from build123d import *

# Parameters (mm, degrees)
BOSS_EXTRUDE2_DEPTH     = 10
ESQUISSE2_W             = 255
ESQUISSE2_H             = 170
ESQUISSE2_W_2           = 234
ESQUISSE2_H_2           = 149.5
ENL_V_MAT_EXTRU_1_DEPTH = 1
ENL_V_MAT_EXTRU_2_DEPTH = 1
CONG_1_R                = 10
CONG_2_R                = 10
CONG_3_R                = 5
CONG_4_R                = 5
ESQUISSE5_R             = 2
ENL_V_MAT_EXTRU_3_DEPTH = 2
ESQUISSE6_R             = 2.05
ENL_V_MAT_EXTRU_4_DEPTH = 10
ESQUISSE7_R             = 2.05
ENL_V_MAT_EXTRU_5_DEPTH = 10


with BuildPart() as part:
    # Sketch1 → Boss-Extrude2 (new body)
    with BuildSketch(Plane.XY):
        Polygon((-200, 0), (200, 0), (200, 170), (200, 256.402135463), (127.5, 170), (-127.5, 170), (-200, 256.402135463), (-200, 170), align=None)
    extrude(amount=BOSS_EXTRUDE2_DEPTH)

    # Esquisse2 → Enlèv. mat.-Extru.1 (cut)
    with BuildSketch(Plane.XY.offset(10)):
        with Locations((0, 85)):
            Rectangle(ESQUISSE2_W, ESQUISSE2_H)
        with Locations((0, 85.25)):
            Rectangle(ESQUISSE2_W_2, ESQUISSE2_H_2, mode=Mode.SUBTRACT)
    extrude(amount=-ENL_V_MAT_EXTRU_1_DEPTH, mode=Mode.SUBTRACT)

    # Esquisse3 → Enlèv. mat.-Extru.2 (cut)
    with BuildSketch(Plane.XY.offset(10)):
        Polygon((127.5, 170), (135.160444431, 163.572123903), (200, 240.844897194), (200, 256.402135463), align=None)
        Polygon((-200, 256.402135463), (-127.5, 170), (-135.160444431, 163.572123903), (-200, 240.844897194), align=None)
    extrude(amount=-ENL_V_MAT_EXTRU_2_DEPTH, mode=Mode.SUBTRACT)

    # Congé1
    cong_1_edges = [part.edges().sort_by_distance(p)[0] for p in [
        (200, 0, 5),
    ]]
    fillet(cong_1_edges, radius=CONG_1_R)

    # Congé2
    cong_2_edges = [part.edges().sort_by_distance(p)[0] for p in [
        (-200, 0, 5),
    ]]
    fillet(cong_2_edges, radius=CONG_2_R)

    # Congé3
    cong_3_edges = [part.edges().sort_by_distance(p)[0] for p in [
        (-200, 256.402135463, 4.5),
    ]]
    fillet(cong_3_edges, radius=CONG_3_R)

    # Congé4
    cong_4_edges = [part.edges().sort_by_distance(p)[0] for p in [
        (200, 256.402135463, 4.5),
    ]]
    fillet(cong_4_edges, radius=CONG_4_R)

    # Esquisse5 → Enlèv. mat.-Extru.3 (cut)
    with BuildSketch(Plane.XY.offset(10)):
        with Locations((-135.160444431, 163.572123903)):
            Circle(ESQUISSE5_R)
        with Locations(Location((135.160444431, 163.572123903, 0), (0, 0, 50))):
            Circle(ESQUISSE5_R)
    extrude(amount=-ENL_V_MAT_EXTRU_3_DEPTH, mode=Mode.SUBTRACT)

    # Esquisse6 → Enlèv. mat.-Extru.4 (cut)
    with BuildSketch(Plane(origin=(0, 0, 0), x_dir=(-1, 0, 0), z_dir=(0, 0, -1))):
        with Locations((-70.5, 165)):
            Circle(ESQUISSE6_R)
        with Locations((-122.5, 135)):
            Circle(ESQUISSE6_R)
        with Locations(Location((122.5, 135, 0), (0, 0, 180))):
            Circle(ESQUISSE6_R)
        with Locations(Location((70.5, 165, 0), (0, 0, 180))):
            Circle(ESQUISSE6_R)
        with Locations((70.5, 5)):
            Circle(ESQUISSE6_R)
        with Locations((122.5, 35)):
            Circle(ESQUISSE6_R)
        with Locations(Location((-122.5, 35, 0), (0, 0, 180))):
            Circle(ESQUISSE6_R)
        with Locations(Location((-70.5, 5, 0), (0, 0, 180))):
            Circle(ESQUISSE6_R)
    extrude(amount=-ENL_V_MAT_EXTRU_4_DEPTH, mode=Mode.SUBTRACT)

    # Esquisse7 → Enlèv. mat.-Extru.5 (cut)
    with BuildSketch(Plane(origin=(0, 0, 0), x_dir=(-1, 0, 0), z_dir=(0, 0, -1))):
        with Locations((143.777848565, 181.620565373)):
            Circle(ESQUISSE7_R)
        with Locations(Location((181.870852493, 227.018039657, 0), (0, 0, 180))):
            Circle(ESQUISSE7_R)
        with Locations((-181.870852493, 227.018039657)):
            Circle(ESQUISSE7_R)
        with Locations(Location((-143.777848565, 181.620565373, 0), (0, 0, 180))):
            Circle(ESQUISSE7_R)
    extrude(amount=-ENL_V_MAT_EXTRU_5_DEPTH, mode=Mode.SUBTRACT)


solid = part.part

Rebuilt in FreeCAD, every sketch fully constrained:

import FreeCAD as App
import Part
import Sketcher

V = App.Vector
Q = App.Units.Quantity


def edges_at(feature, points):
    """Names of the edges that pass closest to the given points."""
    edges = feature.Shape.Edges
    near = lambda p: min(range(len(edges)), key=lambda i: edges[i].distToShape(Part.Vertex(*p))[0])
    return sorted({f"Edge{near(p) + 1}" for p in points})

doc = App.newDocument("Part")
body = doc.addObject("PartDesign::Body", "Body")

# Sketch on XY plane
sketch1 = body.newObject("Sketcher::SketchObject", "Sketch")
sketch1.AttachmentSupport = (doc.getObject("XY_Plane"), [""])
sketch1.MapMode = "FlatFace"
sketch1.addGeometry(Part.LineSegment(V(-200, 0, 0), V(200, 0, 0)), False)
sketch1.addGeometry(Part.LineSegment(V(200, 0, 0), V(200, 256, 0)), False)
sketch1.addGeometry(Part.LineSegment(V(200, 256, 0), V(128, 170, 0)), False)
sketch1.addGeometry(Part.LineSegment(V(128, 170, 0), V(-128, 170, 0)), False)
sketch1.addGeometry(Part.LineSegment(V(-128, 170, 0), V(-200, 256, 0)), False)
sketch1.addGeometry(Part.LineSegment(V(-200, 256, 0), V(-200, 0, 0)), False)
sketch1.addConstraint(Sketcher.Constraint("Coincident", 0, 2, 1, 1))
sketch1.addConstraint(Sketcher.Constraint("Coincident", 1, 2, 2, 1))
sketch1.addConstraint(Sketcher.Constraint("Coincident", 2, 2, 3, 1))
sketch1.addConstraint(Sketcher.Constraint("Coincident", 3, 2, 4, 1))
sketch1.addConstraint(Sketcher.Constraint("Coincident", 4, 2, 5, 1))
sketch1.addConstraint(Sketcher.Constraint("Coincident", 5, 2, 0, 1))
sketch1.addConstraint(Sketcher.Constraint("Horizontal", 0))
sketch1.addConstraint(Sketcher.Constraint("Vertical", 1))
sketch1.addConstraint(Sketcher.Constraint("Horizontal", 3))
sketch1.addConstraint(Sketcher.Constraint("Vertical", 5))
sketch1.addConstraint(Sketcher.Constraint("Symmetric", 0, 2, 5, 2, -1, 1))
sketch1.addConstraint(Sketcher.Constraint("Horizontal", 1, 2, 4, 2))
sketch1.addConstraint(Sketcher.Constraint("Equal", 2, 4))
sketch1.addConstraint(Sketcher.Constraint("DistanceX", 0, 1, 0, 2, 400.0))
sketch1.addConstraint(Sketcher.Constraint("DistanceX", 3, 2, 3, 1, 255.0))
sketch1.addConstraint(Sketcher.Constraint("Angle", 2, Q("-130 deg")))
sketch1.addConstraint(Sketcher.Constraint("DistanceY", -1, 1, 2, 2, 170.0))
pad1 = body.newObject("PartDesign::Pad", "Pad")
pad1.Profile = sketch1
pad1.Length = 10

# Sketch on XY plane
sketch2 = body.newObject("Sketcher::SketchObject", "Sketch001")
sketch2.AttachmentSupport = (doc.getObject("XY_Plane"), [""])
sketch2.MapMode = "FlatFace"
sketch2.AttachmentOffset = App.Placement(V(0, 0, 10), App.Rotation())
sketch2.addGeometry(Part.LineSegment(V(-128, 170, 0), V(-128, 0, 0)), False)
sketch2.addGeometry(Part.LineSegment(V(-128, 0, 0), V(128, 0, 0)), False)
sketch2.addGeometry(Part.LineSegment(V(128, 0, 0), V(128, 170, 0)), False)
sketch2.addGeometry(Part.LineSegment(V(128, 170, 0), V(-128, 170, 0)), False)
sketch2.addGeometry(Part.LineSegment(V(117, 10, 0), V(-117, 10, 0)), False)
sketch2.addGeometry(Part.LineSegment(V(-117, 10, 0), V(-117, 160, 0)), False)
sketch2.addGeometry(Part.LineSegment(V(-117, 160, 0), V(117, 160, 0)), False)
sketch2.addGeometry(Part.LineSegment(V(117, 160, 0), V(117, 10, 0)), False)
sketch2.addConstraint(Sketcher.Constraint("Coincident", 0, 2, 1, 1))
sketch2.addConstraint(Sketcher.Constraint("Coincident", 1, 2, 2, 1))
sketch2.addConstraint(Sketcher.Constraint("Coincident", 2, 2, 3, 1))
sketch2.addConstraint(Sketcher.Constraint("Coincident", 3, 2, 0, 1))
sketch2.addConstraint(Sketcher.Constraint("Coincident", 4, 2, 5, 1))
sketch2.addConstraint(Sketcher.Constraint("Coincident", 5, 2, 6, 1))
sketch2.addConstraint(Sketcher.Constraint("Coincident", 6, 2, 7, 1))
sketch2.addConstraint(Sketcher.Constraint("Coincident", 7, 2, 4, 1))
sketch2.addConstraint(Sketcher.Constraint("Vertical", 0))
sketch2.addConstraint(Sketcher.Constraint("Horizontal", 1))
sketch2.addConstraint(Sketcher.Constraint("Vertical", 2))
sketch2.addConstraint(Sketcher.Constraint("Horizontal", 3))
sketch2.addConstraint(Sketcher.Constraint("Horizontal", 4))
sketch2.addConstraint(Sketcher.Constraint("Vertical", 5))
sketch2.addConstraint(Sketcher.Constraint("Horizontal", 6))
sketch2.addConstraint(Sketcher.Constraint("Vertical", 7))
sketch2.addConstraint(Sketcher.Constraint("Symmetric", 0, 2, 1, 2, -1, 1))
sketch2.addConstraint(Sketcher.Constraint("DistanceX", 1, 1, 1, 2, 255.0))
sketch2.addConstraint(Sketcher.Constraint("DistanceX", 4, 2, 4, 1, 234.0))
sketch2.addConstraint(Sketcher.Constraint("DistanceY", 0, 2, 0, 1, 170.0))
sketch2.addConstraint(Sketcher.Constraint("DistanceY", 5, 1, 5, 2, 149.5))
sketch2.addConstraint(Sketcher.Constraint("DistanceX", 4, 2, -1, 1, 117.0))
sketch2.addConstraint(Sketcher.Constraint("DistanceY", -1, 1, 5, 2, 160.0))
pocket1 = body.newObject("PartDesign::Pocket", "Pocket")
pocket1.Profile = sketch2
pocket1.Length = 1

# Sketch on XY plane
sketch3 = body.newObject("Sketcher::SketchObject", "Sketch002")
sketch3.AttachmentSupport = (doc.getObject("XY_Plane"), [""])
sketch3.MapMode = "FlatFace"
sketch3.AttachmentOffset = App.Placement(V(0, 0, 10), App.Rotation())
sketch3.addGeometry(Part.LineSegment(V(128, 170, 0), V(135, 164, 0)), False)
sketch3.addGeometry(Part.LineSegment(V(135, 164, 0), V(200, 241, 0)), False)
sketch3.addGeometry(Part.LineSegment(V(200, 241, 0), V(200, 256, 0)), False)
sketch3.addGeometry(Part.LineSegment(V(200, 256, 0), V(128, 170, 0)), False)
sketch3.addGeometry(Part.LineSegment(V(-128, 170, 0), V(-200, 256, 0)), False)
sketch3.addGeometry(Part.LineSegment(V(-200, 256, 0), V(-200, 241, 0)), False)
sketch3.addGeometry(Part.LineSegment(V(-200, 241, 0), V(-135, 164, 0)), False)
sketch3.addGeometry(Part.LineSegment(V(-135, 164, 0), V(-128, 170, 0)), False)
sketch3.addConstraint(Sketcher.Constraint("Coincident", 0, 2, 1, 1))
sketch3.addConstraint(Sketcher.Constraint("Coincident", 1, 2, 2, 1))
sketch3.addConstraint(Sketcher.Constraint("Coincident", 2, 2, 3, 1))
sketch3.addConstraint(Sketcher.Constraint("Coincident", 3, 2, 0, 1))
sketch3.addConstraint(Sketcher.Constraint("Coincident", 4, 2, 5, 1))
sketch3.addConstraint(Sketcher.Constraint("Coincident", 5, 2, 6, 1))
sketch3.addConstraint(Sketcher.Constraint("Coincident", 6, 2, 7, 1))
sketch3.addConstraint(Sketcher.Constraint("Coincident", 7, 2, 4, 1))
sketch3.addConstraint(Sketcher.Constraint("Vertical", 2))
sketch3.addConstraint(Sketcher.Constraint("Vertical", 5))
sketch3.addConstraint(Sketcher.Constraint("Symmetric", 2, 2, 4, 2, -2))
sketch3.addConstraint(Sketcher.Constraint("Symmetric", 0, 2, 6, 2, -2))
sketch3.addConstraint(Sketcher.Constraint("Symmetric", 3, 2, 7, 2, -2))
sketch3.addConstraint(Sketcher.Constraint("Perpendicular", 0, 1))
sketch3.addConstraint(Sketcher.Constraint("Parallel", 1, 3))
sketch3.addConstraint(Sketcher.Constraint("Parallel", 4, 6))
sketch3.addConstraint(Sketcher.Constraint("Angle", 0, Q("-40 deg")))
sketch3.addConstraint(Sketcher.Constraint("Distance", 0, 10.0))
sketch3.addConstraint(Sketcher.Constraint("DistanceX", -1, 1, 1, 2, 200.0))
sketch3.addConstraint(Sketcher.Constraint("DistanceY", -1, 1, 3, 2, 170.0))
sketch3.addConstraint(Sketcher.Constraint("DistanceX", 7, 2, 3, 2, 255.0))
pocket2 = body.newObject("PartDesign::Pocket", "Pocket001")
pocket2.Profile = sketch3
pocket2.Length = 1
doc.recompute()

fillet = body.newObject("PartDesign::Fillet", "Fillet")
fillet.Base = (pocket2, edges_at(pocket2, [(200, 0, 5)]))
fillet.Radius = 10
doc.recompute()

fillet2 = body.newObject("PartDesign::Fillet", "Fillet001")
fillet2.Base = (fillet, edges_at(fillet, [(-200, 0, 5)]))
fillet2.Radius = 10
doc.recompute()

fillet3 = body.newObject("PartDesign::Fillet", "Fillet002")
fillet3.Base = (fillet2, edges_at(fillet2, [(-200, 256.402, 4.5)]))
fillet3.Radius = 5
doc.recompute()

fillet4 = body.newObject("PartDesign::Fillet", "Fillet003")
fillet4.Base = (fillet3, edges_at(fillet3, [(200, 256.402, 4.5)]))
fillet4.Radius = 5

# Sketch on XY plane
sketch4 = body.newObject("Sketcher::SketchObject", "Sketch003")
sketch4.AttachmentSupport = (doc.getObject("XY_Plane"), [""])
sketch4.MapMode = "FlatFace"
sketch4.AttachmentOffset = App.Placement(V(0, 0, 10), App.Rotation())
sketch4.addGeometry(Part.Circle(V(-135.2, 163.6, 0), V(0, 0, 1), 2), False)
sketch4.addGeometry(Part.Circle(V(135.2, 163.6, 0), V(0, 0, 1), 2), False)
sketch4.addConstraint(Sketcher.Constraint("Equal", 0, 1))
sketch4.addConstraint(Sketcher.Constraint("Symmetric", 0, 3, 1, 3, -2))
sketch4.addConstraint(Sketcher.Constraint("Diameter", 0, 4.0))
sketch4.addConstraint(Sketcher.Constraint("DistanceX", 0, 3, 1, 3, 270.320889))
sketch4.addConstraint(Sketcher.Constraint("DistanceY", -1, 1, 0, 3, 163.572124))
pocket3 = body.newObject("PartDesign::Pocket", "Pocket002")
pocket3.Profile = sketch4
pocket3.Length = 2

# Sketch on XY plane
sketch5 = body.newObject("Sketcher::SketchObject", "Sketch004")
sketch5.AttachmentSupport = (doc.getObject("XY_Plane"), [""])
sketch5.MapMode = "FlatFace"
sketch5.addGeometry(Part.Circle(V(70.5, 165, 0), V(0, 0, 1), 2), False)
sketch5.addGeometry(Part.Circle(V(122.5, 135, 0), V(0, 0, 1), 2), False)
sketch5.addGeometry(Part.Circle(V(-122.5, 135, 0), V(0, 0, 1), 2), False)
sketch5.addGeometry(Part.Circle(V(-70.5, 165, 0), V(0, 0, 1), 2), False)
sketch5.addGeometry(Part.Circle(V(-70.5, 5, 0), V(0, 0, 1), 2), False)
sketch5.addGeometry(Part.Circle(V(-122.5, 35, 0), V(0, 0, 1), 2), False)
sketch5.addGeometry(Part.Circle(V(122.5, 35, 0), V(0, 0, 1), 2), False)
sketch5.addGeometry(Part.Circle(V(70.5, 5, 0), V(0, 0, 1), 2), False)
sketch5.addConstraint(Sketcher.Constraint("Equal", 0, 1))
sketch5.addConstraint(Sketcher.Constraint("Equal", 1, 2))
sketch5.addConstraint(Sketcher.Constraint("Equal", 2, 3))
sketch5.addConstraint(Sketcher.Constraint("Equal", 3, 4))
sketch5.addConstraint(Sketcher.Constraint("Equal", 4, 5))
sketch5.addConstraint(Sketcher.Constraint("Equal", 5, 6))
sketch5.addConstraint(Sketcher.Constraint("Equal", 6, 7))
sketch5.addConstraint(Sketcher.Constraint("Symmetric", 1, 3, 2, 3, -2))
sketch5.addConstraint(Sketcher.Constraint("Symmetric", 0, 3, 3, 3, -2))
sketch5.addConstraint(Sketcher.Constraint("Symmetric", 5, 3, 6, 3, -2))
sketch5.addConstraint(Sketcher.Constraint("Symmetric", 4, 3, 7, 3, -2))
sketch5.addConstraint(Sketcher.Constraint("Vertical", 3, 3, 4, 3))
sketch5.addConstraint(Sketcher.Constraint("Vertical", 2, 3, 5, 3))
sketch5.addConstraint(Sketcher.Constraint("Diameter", 0, 4.1))
sketch5.addConstraint(Sketcher.Constraint("DistanceY", -1, 1, 0, 3, 165.0))
sketch5.addConstraint(Sketcher.Constraint("DistanceY", -1, 1, 1, 3, 135.0))
sketch5.addConstraint(Sketcher.Constraint("DistanceY", -1, 1, 4, 3, 5.0))
sketch5.addConstraint(Sketcher.Constraint("DistanceY", -1, 1, 5, 3, 35.0))
sketch5.addConstraint(Sketcher.Constraint("DistanceX", 0, 3, 1, 3, 52.0))
sketch5.addConstraint(Sketcher.Constraint("DistanceX", 2, 3, 0, 3, 193.0))
pocket4 = body.newObject("PartDesign::Pocket", "Pocket003")
pocket4.Profile = sketch5
pocket4.Length = 10
pocket4.Reversed = True

# Sketch on XY plane
sketch6 = body.newObject("Sketcher::SketchObject", "Sketch005")
sketch6.AttachmentSupport = (doc.getObject("XY_Plane"), [""])
sketch6.MapMode = "FlatFace"
sketch6.addGeometry(Part.Circle(V(-143.8, 181.6, 0), V(0, 0, 1), 2), False)
sketch6.addGeometry(Part.Circle(V(-181.9, 227, 0), V(0, 0, 1), 2), False)
sketch6.addGeometry(Part.Circle(V(181.9, 227, 0), V(0, 0, 1), 2), False)
sketch6.addGeometry(Part.Circle(V(143.8, 181.6, 0), V(0, 0, 1), 2), False)
sketch6.addConstraint(Sketcher.Constraint("Equal", 0, 1))
sketch6.addConstraint(Sketcher.Constraint("Equal", 1, 2))
sketch6.addConstraint(Sketcher.Constraint("Equal", 2, 3))
sketch6.addConstraint(Sketcher.Constraint("Symmetric", 1, 3, 2, 3, -2))
sketch6.addConstraint(Sketcher.Constraint("Symmetric", 0, 3, 3, 3, -2))
sketch6.addConstraint(Sketcher.Constraint("Diameter", 0, 4.1))
sketch6.addConstraint(Sketcher.Constraint("DistanceX", 0, 3, 2, 3, 325.648701))
sketch6.addConstraint(Sketcher.Constraint("DistanceX", 0, 3, -1, 1, 143.777849))
sketch6.addConstraint(Sketcher.Constraint("DistanceY", -1, 1, 1, 3, 227.01804))
sketch6.addConstraint(Sketcher.Constraint("DistanceY", -1, 1, 0, 3, 181.620565))
pocket5 = body.newObject("PartDesign::Pocket", "Pocket004")
pocket5.Profile = sketch6
pocket5.Length = 10
pocket5.Reversed = True

doc.recompute()
